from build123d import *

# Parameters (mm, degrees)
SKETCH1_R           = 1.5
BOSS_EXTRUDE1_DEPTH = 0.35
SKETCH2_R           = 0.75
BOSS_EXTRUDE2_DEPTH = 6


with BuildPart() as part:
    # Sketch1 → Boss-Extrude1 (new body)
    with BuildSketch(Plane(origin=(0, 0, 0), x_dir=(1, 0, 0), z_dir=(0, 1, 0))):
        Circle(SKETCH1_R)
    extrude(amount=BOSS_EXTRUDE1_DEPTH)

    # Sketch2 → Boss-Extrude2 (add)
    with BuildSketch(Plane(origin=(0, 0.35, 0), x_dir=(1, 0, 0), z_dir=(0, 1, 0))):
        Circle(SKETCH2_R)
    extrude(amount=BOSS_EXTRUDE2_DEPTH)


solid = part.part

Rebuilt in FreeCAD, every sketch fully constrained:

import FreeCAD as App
import Part
import Sketcher

V = App.Vector
Q = App.Units.Quantity

doc = App.newDocument("Part")
body = doc.addObject("PartDesign::Body", "Body")

sketch1 = body.newObject("Sketcher::SketchObject", "Sketch")
sketch1.AttachmentSupport = (doc.getObject("XZ_Plane"), [""])
sketch1.MapMode = "FlatFace"
sketch1.addGeometry(Part.Circle(V(0, 0, 0), V(0, 0, 1), 1.5), False)
sketch1.addConstraint(Sketcher.Constraint("Coincident", 0, 3, -1, 1))
sketch1.addConstraint(Sketcher.Constraint("Diameter", 0, Q("3 mm")))
pad1 = body.newObject("PartDesign::Pad", "Pad")
pad1.Profile = sketch1
pad1.Length = 0.35
pad1.Reversed = True

sketch2 = body.newObject("Sketcher::SketchObject", "Sketch001")
sketch2.AttachmentSupport = (doc.getObject("XZ_Plane"), [""])
sketch2.MapMode = "FlatFace"
sketch2.AttachmentOffset = App.Placement(V(0, 0, -0.35), App.Rotation())
sketch2.addGeometry(Part.Circle(V(0, 0, 0), V(0, 0, 1), 0.8), False)
sketch2.addConstraint(Sketcher.Constraint("Coincident", 0, 3, -1, 1))
sketch2.addConstraint(Sketcher.Constraint("Diameter", 0, Q("1.5 mm")))
pad2 = body.newObject("PartDesign::Pad", "Pad001")
pad2.Profile = sketch2
pad2.Length = 6
pad2.Reversed = True

doc.recompute()
